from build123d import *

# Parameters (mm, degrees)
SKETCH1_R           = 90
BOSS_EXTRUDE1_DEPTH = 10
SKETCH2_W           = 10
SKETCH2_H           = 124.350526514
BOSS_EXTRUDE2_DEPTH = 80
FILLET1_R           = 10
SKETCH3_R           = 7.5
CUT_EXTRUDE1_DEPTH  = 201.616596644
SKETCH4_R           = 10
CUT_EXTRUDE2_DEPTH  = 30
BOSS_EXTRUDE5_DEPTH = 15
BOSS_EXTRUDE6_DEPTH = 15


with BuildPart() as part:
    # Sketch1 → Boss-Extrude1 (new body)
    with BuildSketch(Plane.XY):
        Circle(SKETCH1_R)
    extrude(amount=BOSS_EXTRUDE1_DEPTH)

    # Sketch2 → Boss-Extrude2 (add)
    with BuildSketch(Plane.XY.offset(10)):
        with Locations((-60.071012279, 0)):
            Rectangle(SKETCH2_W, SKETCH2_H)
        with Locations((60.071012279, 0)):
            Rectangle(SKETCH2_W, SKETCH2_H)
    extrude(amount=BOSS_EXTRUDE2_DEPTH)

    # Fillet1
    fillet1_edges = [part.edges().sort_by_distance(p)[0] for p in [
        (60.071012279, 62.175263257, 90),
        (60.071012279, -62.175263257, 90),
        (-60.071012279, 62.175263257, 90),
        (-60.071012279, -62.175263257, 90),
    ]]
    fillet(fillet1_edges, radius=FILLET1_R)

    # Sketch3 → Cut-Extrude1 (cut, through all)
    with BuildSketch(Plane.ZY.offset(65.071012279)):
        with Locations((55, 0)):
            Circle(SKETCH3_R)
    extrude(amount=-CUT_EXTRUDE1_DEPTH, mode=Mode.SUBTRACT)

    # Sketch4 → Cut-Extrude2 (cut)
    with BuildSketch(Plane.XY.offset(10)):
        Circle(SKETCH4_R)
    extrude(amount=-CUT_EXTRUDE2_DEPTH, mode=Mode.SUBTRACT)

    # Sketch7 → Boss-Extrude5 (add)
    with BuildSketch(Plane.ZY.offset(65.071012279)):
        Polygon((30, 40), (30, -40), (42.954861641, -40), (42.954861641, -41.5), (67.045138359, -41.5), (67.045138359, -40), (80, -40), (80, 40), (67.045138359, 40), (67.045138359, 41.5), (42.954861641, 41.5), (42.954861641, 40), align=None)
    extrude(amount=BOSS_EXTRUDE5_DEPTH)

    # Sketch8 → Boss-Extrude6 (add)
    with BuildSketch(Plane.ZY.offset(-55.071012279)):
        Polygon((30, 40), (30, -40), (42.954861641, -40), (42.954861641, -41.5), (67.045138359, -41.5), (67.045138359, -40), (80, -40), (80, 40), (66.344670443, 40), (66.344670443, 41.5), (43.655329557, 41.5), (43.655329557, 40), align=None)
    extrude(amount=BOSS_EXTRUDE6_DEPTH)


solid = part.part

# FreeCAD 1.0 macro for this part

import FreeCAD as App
import Part
import Sketcher
from FreeCAD import Vector
Q = App.Units.Quantity


def edges_at(feature, points):
    """Names of the edges that pass closest to the given points."""
    edges = feature.Shape.Edges
    near = lambda p: min(range(len(edges)), key=lambda i: edges[i].distToShape(Part.Vertex(*p))[0])
    return sorted({f"Edge{near(p) + 1}" for p in points})

doc = App.newDocument("Part")
params = doc.addObject("Spreadsheet::Sheet", "Params")
for row, (alias, value) in enumerate([
    ("sketch1_diameter", "180 mm"),
    ("pad1_length", "10 mm"),
    ("sketch2_width", "10 mm"),
    ("pad2_length", "80 mm"),
    ("fillet_radius", "10 mm"),
    ("sketch3_diameter", "15 mm"),
    ("sketch4_diameter", "20 mm"),
    ("pocket2_length", "30 mm"),
    ("sketch5_width", "80 mm"),
    ("sketch5_width2", "1.5 mm"),
    ("pad3_length", "15 mm"),
    ("sketch6_width", "80 mm"),
    ("sketch6_width2", "1.5 mm"),
    ("pad4_length", "15 mm"),
], start=1):
    params.set(f"A{row}", alias)
    params.set(f"B{row}", "=" + value)
    params.setAlias(f"B{row}", alias)

body = doc.addObject("PartDesign::Body", "Body")

sketch1 = body.newObject("Sketcher::SketchObject", "Sketch")
sketch1.AttachmentSupport = (doc.getObject("XY_Plane"), [""])
sketch1.MapMode = "FlatFace"
sketch1.addGeometry(Part.Circle(Vector(0, 0, 0), Vector(0, 0, 1), 90), False)
sketch1.addConstraint([
    Sketcher.Constraint("Coincident", 0, 3, -1, 1),
    Sketcher.Constraint("Diameter", 0, Q("180 mm")),
])
sketch1.setExpression("Constraints[1]", "Params.sketch1_diameter")
pad1 = body.newObject("PartDesign::Pad", "Pad")
pad1.Profile = sketch1
pad1.setExpression("Length", "Params.pad1_length")

sketch2 = body.newObject("Sketcher::SketchObject", "Sketch001")
sketch2.AttachmentSupport = (doc.getObject("XY_Plane"), [""])
sketch2.MapMode = "FlatFace"
sketch2.AttachmentOffset = App.Placement(Vector(0, 0, 10), App.Rotation())
sketch2.addGeometry([
    Part.LineSegment(Vector(-65.071012, 62.175263, 0), Vector(-65.071012, -62.175263, 0)),
    Part.LineSegment(Vector(-65.071012, -62.175263, 0), Vector(-55.071012, -62.175263, 0)),
    Part.LineSegment(Vector(-55.071012, -62.175263, 0), Vector(-55.071012, 62.175263, 0)),
    Part.LineSegment(Vector(-55.071012, 62.175263, 0), Vector(-65.071012, 62.175263, 0)),
    Part.LineSegment(Vector(55.071012, 62.175263, 0), Vector(55.071012, -62.175263, 0)),
    Part.LineSegment(Vector(55.071012, -62.175263, 0), Vector(65.071012, -62.175263, 0)),
    Part.LineSegment(Vector(65.071012, -62.175263, 0), Vector(65.071012, 62.175263, 0)),
    Part.LineSegment(Vector(65.071012, 62.175263, 0), Vector(55.071012, 62.175263, 0)),
], False)
sketch2.addConstraint([
    Sketcher.Constraint("Coincident", 0, 2, 1, 1),
    Sketcher.Constraint("Coincident", 1, 2, 2, 1),
    Sketcher.Constraint("Coincident", 2, 2, 3, 1),
    Sketcher.Constraint("Coincident", 3, 2, 0, 1),
    Sketcher.Constraint("Coincident", 4, 2, 5, 1),
    Sketcher.Constraint("Coincident", 5, 2, 6, 1),
    Sketcher.Constraint("Coincident", 6, 2, 7, 1),
    Sketcher.Constraint("Coincident", 7, 2, 4, 1),
    Sketcher.Constraint("Vertical", 0),
    Sketcher.Constraint("Horizontal", 1),
    Sketcher.Constraint("Vertical", 2),
    Sketcher.Constraint("Horizontal", 3),
    Sketcher.Constraint("Vertical", 4),
    Sketcher.Constraint("Horizontal", 5),
    Sketcher.Constraint("Vertical", 6),
    Sketcher.Constraint("Horizontal", 7),
    Sketcher.Constraint("Symmetric", 2, 2, 4, 2, -1, 1),
    Sketcher.Constraint("Symmetric", 0, 2, 6, 2, -1, 1),
    Sketcher.Constraint("Horizontal", 1, 2, 4, 2),
    Sketcher.Constraint("DistanceX", 1, 1, 1, 2, Q("10 mm")),
    Sketcher.Constraint("DistanceY", 0, 2, 0, 1, Q("124.350527 mm")),
    Sketcher.Constraint("DistanceX", 0, 2, -1, 1, Q("65.071012 mm")),
])
sketch2.setExpression("Constraints[19]", "Params.sketch2_width")
pad2 = body.newObject("PartDesign::Pad", "Pad001")
pad2.Profile = sketch2
pad2.setExpression("Length", "Params.pad2_length")
doc.recompute()

fillet = body.newObject("PartDesign::Fillet", "Fillet")
fillet.Base = (pad2, edges_at(pad2, [
    (60.071, 62.175, 90),
    (60.071, -62.175, 90),
    (-60.071, 62.175, 90),
    (-60.071, -62.175, 90),
]))
fillet.setExpression("Radius", "Params.fillet_radius")

sketch3 = body.newObject("Sketcher::SketchObject", "Sketch002")
sketch3.AttachmentSupport = (doc.getObject("YZ_Plane"), [""])
sketch3.MapMode = "FlatFace"
sketch3.AttachmentOffset = App.Placement(Vector(0, 0, -65.071012), App.Rotation())
sketch3.addGeometry(Part.Circle(Vector(0, 55, 0), Vector(0, 0, 1), 7.5), False)
sketch3.addConstraint([
    Sketcher.Constraint("PointOnObject", 0, 3, -2),
    Sketcher.Constraint("Diameter", 0, Q("15 mm")),
    Sketcher.Constraint("DistanceY", -1, 1, 0, 3, Q("55 mm")),
])
sketch3.setExpression("Constraints[1]", "Params.sketch3_diameter")
pocket1 = body.newObject("PartDesign::Pocket", "Pocket")
pocket1.Profile = sketch3
pocket1.Type = "ThroughAll"
pocket1.Reversed = True

sketch4 = body.newObject("Sketcher::SketchObject", "Sketch003")
sketch4.AttachmentSupport = (doc.getObject("XY_Plane"), [""])
sketch4.MapMode = "FlatFace"
sketch4.AttachmentOffset = App.Placement(Vector(0, 0, 10), App.Rotation())
sketch4.addGeometry(Part.Circle(Vector(0, 0, 0), Vector(0, 0, 1), 10), False)
sketch4.addConstraint([
    Sketcher.Constraint("Coincident", 0, 3, -1, 1),
    Sketcher.Constraint("Diameter", 0, Q("20 mm")),
])
sketch4.setExpression("Constraints[1]", "Params.sketch4_diameter")
pocket2 = body.newObject("PartDesign::Pocket", "Pocket001")
pocket2.Profile = sketch4
pocket2.setExpression("Length", "Params.pocket2_length")

sketch5 = body.newObject("Sketcher::SketchObject", "Sketch004")
sketch5.AttachmentSupport = (doc.getObject("YZ_Plane"), [""])
sketch5.MapMode = "FlatFace"
sketch5.AttachmentOffset = App.Placement(Vector(0, 0, -65.071012), App.Rotation())
sketch5.addGeometry([
    Part.LineSegment(Vector(40, 30, 0), Vector(-40, 30, 0)),
    Part.LineSegment(Vector(-40, 30, 0), Vector(-40, 42.954862, 0)),
    Part.LineSegment(Vector(-40, 42.954862, 0), Vector(-41.5, 42.954862, 0)),
    Part.LineSegment(Vector(-41.5, 42.954862, 0), Vector(-41.5, 67.045138, 0)),
    Part.LineSegment(Vector(-41.5, 67.045138, 0), Vector(-40, 67.045138, 0)),
    Part.LineSegment(Vector(-40, 67.045138, 0), Vector(-40, 80, 0)),
    Part.LineSegment(Vector(-40, 80, 0), Vector(40, 80, 0)),
    Part.LineSegment(Vector(40, 80, 0), Vector(40, 67.045138, 0)),
    Part.LineSegment(Vector(40, 67.045138, 0), Vector(41.5, 67.045138, 0)),
    Part.LineSegment(Vector(41.5, 67.045138, 0), Vector(41.5, 42.954862, 0)),
    Part.LineSegment(Vector(41.5, 42.954862, 0), Vector(40, 42.954862, 0)),
    Part.LineSegment(Vector(40, 42.954862, 0), Vector(40, 30, 0)),
], False)
sketch5.addConstraint([
    Sketcher.Constraint("Coincident", 0, 2, 1, 1),
    Sketcher.Constraint("Coincident", 1, 2, 2, 1),
    Sketcher.Constraint("Coincident", 2, 2, 3, 1),
    Sketcher.Constraint("Coincident", 3, 2, 4, 1),
    Sketcher.Constraint("Coincident", 4, 2, 5, 1),
    Sketcher.Constraint("Coincident", 5, 2, 6, 1),
    Sketcher.Constraint("Coincident", 6, 2, 7, 1),
    Sketcher.Constraint("Coincident", 7, 2, 8, 1),
    Sketcher.Constraint("Coincident", 8, 2, 9, 1),
    Sketcher.Constraint("Coincident", 9, 2, 10, 1),
    Sketcher.Constraint("Coincident", 10, 2, 11, 1),
    Sketcher.Constraint("Coincident", 11, 2, 0, 1),
    Sketcher.Constraint("Horizontal", 0),
    Sketcher.Constraint("Vertical", 1),
    Sketcher.Constraint("Horizontal", 2),
    Sketcher.Constraint("Vertical", 3),
    Sketcher.Constraint("Horizontal", 4),
    Sketcher.Constraint("Vertical", 5),
    Sketcher.Constraint("Horizontal", 6),
    Sketcher.Constraint("Vertical", 7),
    Sketcher.Constraint("Horizontal", 8),
    Sketcher.Constraint("Vertical", 9),
    Sketcher.Constraint("Horizontal", 10),
    Sketcher.Constraint("Vertical", 11),
    Sketcher.Constraint("Symmetric", 4, 2, 7, 2, -2),
    Sketcher.Constraint("Symmetric", 2, 2, 9, 2, -2),
    Sketcher.Constraint("Vertical", 1, 2, 4, 2),
    Sketcher.Constraint("Vertical", 7, 2, 10, 2),
    Sketcher.Constraint("Equal", 1, 5),
    Sketcher.Constraint("DistanceX", 0, 2, 0, 1, Q("80 mm")),
    Sketcher.Constraint("DistanceX", 2, 2, 2, 1, Q("1.5 mm")),
    Sketcher.Constraint("DistanceY", -1, 1, 0, 2, Q("30 mm")),
    Sketcher.Constraint("DistanceY", -1, 1, 5, 2, Q("80 mm")),
    Sketcher.Constraint("DistanceY", 1, 1, 1, 2, Q("12.954862 mm")),
])
sketch5.setExpression("Constraints[29]", "Params.sketch5_width")
sketch5.setExpression("Constraints[30]", "Params.sketch5_width2")
pad3 = body.newObject("PartDesign::Pad", "Pad002")
pad3.Profile = sketch5
pad3.setExpression("Length", "Params.pad3_length")
pad3.Reversed = True

sketch6 = body.newObject("Sketcher::SketchObject", "Sketch005")
sketch6.AttachmentSupport = (doc.getObject("YZ_Plane"), [""])
sketch6.MapMode = "FlatFace"
sketch6.AttachmentOffset = App.Placement(Vector(0, 0, 55.071012), App.Rotation())
sketch6.addGeometry([
    Part.LineSegment(Vector(40, 30, 0), Vector(-40, 30, 0)),
    Part.LineSegment(Vector(-40, 30, 0), Vector(-40, 42.954862, 0)),
    Part.LineSegment(Vector(-40, 42.954862, 0), Vector(-41.5, 42.954862, 0)),
    Part.LineSegment(Vector(-41.5, 42.954862, 0), Vector(-41.5, 67.045138, 0)),
    Part.LineSegment(Vector(-41.5, 67.045138, 0), Vector(-40, 67.045138, 0)),
    Part.LineSegment(Vector(-40, 67.045138, 0), Vector(-40, 80, 0)),
    Part.LineSegment(Vector(-40, 80, 0), Vector(40, 80, 0)),
    Part.LineSegment(Vector(40, 80, 0), Vector(40, 66.34467, 0)),
    Part.LineSegment(Vector(40, 66.34467, 0), Vector(41.5, 66.34467, 0)),
    Part.LineSegment(Vector(41.5, 66.34467, 0), Vector(41.5, 43.65533, 0)),
    Part.LineSegment(Vector(41.5, 43.65533, 0), Vector(40, 43.65533, 0)),
    Part.LineSegment(Vector(40, 43.65533, 0), Vector(40, 30, 0)),
], False)
sketch6.addConstraint([
    Sketcher.Constraint("Coincident", 0, 2, 1, 1),
    Sketcher.Constraint("Coincident", 1, 2, 2, 1),
    Sketcher.Constraint("Coincident", 2, 2, 3, 1),
    Sketcher.Constraint("Coincident", 3, 2, 4, 1),
    Sketcher.Constraint("Coincident", 4, 2, 5, 1),
    Sketcher.Constraint("Coincident", 5, 2, 6, 1),
    Sketcher.Constraint("Coincident", 6, 2, 7, 1),
    Sketcher.Constraint("Coincident", 7, 2, 8, 1),
    Sketcher.Constraint("Coincident", 8, 2, 9, 1),
    Sketcher.Constraint("Coincident", 9, 2, 10, 1),
    Sketcher.Constraint("Coincident", 10, 2, 11, 1),
    Sketcher.Constraint("Coincident", 11, 2, 0, 1),
    Sketcher.Constraint("Horizontal", 0),
    Sketcher.Constraint("Vertical", 1),
    Sketcher.Constraint("Horizontal", 2),
    Sketcher.Constraint("Vertical", 3),
    Sketcher.Constraint("Horizontal", 4),
    Sketcher.Constraint("Vertical", 5),
    Sketcher.Constraint("Horizontal", 6),
    Sketcher.Constraint("Vertical", 7),
    Sketcher.Constraint("Horizontal", 8),
    Sketcher.Constraint("Vertical", 9),
    Sketcher.Constraint("Horizontal", 10),
    Sketcher.Constraint("Vertical", 11),
    Sketcher.Constraint("Vertical", 1, 2, 4, 2),
    Sketcher.Constraint("Vertical", 7, 2, 10, 2),
    Sketcher.Constraint("Equal", 4, 8),
    Sketcher.Constraint("Equal", 1, 5),
    Sketcher.Constraint("Equal", 7, 11),
    Sketcher.Constraint("DistanceX", 0, 2, 0, 1, Q("80 mm")),
    Sketcher.Constraint("DistanceX", 2, 2, 2, 1, Q("1.5 mm")),
    Sketcher.Constraint("DistanceX", 0, 2, -1, 1, Q("40 mm")),
    Sketcher.Constraint("DistanceY", -1, 1, 0, 2, Q("30 mm")),
    Sketcher.Constraint("DistanceY", -1, 1, 5, 2, Q("80 mm")),
    Sketcher.Constraint("DistanceY", 1, 1, 1, 2, Q("12.954862 mm")),
    Sketcher.Constraint("DistanceY", 7, 2, 7, 1, Q("13.65533 mm")),
])
sketch6.setExpression("Constraints[29]", "Params.sketch6_width")
sketch6.setExpression("Constraints[30]", "Params.sketch6_width2")
pad4 = body.newObject("PartDesign::Pad", "Pad003")
pad4.Profile = sketch6
pad4.setExpression("Length", "Params.pad4_length")
pad4.Reversed = True

doc.recompute()
